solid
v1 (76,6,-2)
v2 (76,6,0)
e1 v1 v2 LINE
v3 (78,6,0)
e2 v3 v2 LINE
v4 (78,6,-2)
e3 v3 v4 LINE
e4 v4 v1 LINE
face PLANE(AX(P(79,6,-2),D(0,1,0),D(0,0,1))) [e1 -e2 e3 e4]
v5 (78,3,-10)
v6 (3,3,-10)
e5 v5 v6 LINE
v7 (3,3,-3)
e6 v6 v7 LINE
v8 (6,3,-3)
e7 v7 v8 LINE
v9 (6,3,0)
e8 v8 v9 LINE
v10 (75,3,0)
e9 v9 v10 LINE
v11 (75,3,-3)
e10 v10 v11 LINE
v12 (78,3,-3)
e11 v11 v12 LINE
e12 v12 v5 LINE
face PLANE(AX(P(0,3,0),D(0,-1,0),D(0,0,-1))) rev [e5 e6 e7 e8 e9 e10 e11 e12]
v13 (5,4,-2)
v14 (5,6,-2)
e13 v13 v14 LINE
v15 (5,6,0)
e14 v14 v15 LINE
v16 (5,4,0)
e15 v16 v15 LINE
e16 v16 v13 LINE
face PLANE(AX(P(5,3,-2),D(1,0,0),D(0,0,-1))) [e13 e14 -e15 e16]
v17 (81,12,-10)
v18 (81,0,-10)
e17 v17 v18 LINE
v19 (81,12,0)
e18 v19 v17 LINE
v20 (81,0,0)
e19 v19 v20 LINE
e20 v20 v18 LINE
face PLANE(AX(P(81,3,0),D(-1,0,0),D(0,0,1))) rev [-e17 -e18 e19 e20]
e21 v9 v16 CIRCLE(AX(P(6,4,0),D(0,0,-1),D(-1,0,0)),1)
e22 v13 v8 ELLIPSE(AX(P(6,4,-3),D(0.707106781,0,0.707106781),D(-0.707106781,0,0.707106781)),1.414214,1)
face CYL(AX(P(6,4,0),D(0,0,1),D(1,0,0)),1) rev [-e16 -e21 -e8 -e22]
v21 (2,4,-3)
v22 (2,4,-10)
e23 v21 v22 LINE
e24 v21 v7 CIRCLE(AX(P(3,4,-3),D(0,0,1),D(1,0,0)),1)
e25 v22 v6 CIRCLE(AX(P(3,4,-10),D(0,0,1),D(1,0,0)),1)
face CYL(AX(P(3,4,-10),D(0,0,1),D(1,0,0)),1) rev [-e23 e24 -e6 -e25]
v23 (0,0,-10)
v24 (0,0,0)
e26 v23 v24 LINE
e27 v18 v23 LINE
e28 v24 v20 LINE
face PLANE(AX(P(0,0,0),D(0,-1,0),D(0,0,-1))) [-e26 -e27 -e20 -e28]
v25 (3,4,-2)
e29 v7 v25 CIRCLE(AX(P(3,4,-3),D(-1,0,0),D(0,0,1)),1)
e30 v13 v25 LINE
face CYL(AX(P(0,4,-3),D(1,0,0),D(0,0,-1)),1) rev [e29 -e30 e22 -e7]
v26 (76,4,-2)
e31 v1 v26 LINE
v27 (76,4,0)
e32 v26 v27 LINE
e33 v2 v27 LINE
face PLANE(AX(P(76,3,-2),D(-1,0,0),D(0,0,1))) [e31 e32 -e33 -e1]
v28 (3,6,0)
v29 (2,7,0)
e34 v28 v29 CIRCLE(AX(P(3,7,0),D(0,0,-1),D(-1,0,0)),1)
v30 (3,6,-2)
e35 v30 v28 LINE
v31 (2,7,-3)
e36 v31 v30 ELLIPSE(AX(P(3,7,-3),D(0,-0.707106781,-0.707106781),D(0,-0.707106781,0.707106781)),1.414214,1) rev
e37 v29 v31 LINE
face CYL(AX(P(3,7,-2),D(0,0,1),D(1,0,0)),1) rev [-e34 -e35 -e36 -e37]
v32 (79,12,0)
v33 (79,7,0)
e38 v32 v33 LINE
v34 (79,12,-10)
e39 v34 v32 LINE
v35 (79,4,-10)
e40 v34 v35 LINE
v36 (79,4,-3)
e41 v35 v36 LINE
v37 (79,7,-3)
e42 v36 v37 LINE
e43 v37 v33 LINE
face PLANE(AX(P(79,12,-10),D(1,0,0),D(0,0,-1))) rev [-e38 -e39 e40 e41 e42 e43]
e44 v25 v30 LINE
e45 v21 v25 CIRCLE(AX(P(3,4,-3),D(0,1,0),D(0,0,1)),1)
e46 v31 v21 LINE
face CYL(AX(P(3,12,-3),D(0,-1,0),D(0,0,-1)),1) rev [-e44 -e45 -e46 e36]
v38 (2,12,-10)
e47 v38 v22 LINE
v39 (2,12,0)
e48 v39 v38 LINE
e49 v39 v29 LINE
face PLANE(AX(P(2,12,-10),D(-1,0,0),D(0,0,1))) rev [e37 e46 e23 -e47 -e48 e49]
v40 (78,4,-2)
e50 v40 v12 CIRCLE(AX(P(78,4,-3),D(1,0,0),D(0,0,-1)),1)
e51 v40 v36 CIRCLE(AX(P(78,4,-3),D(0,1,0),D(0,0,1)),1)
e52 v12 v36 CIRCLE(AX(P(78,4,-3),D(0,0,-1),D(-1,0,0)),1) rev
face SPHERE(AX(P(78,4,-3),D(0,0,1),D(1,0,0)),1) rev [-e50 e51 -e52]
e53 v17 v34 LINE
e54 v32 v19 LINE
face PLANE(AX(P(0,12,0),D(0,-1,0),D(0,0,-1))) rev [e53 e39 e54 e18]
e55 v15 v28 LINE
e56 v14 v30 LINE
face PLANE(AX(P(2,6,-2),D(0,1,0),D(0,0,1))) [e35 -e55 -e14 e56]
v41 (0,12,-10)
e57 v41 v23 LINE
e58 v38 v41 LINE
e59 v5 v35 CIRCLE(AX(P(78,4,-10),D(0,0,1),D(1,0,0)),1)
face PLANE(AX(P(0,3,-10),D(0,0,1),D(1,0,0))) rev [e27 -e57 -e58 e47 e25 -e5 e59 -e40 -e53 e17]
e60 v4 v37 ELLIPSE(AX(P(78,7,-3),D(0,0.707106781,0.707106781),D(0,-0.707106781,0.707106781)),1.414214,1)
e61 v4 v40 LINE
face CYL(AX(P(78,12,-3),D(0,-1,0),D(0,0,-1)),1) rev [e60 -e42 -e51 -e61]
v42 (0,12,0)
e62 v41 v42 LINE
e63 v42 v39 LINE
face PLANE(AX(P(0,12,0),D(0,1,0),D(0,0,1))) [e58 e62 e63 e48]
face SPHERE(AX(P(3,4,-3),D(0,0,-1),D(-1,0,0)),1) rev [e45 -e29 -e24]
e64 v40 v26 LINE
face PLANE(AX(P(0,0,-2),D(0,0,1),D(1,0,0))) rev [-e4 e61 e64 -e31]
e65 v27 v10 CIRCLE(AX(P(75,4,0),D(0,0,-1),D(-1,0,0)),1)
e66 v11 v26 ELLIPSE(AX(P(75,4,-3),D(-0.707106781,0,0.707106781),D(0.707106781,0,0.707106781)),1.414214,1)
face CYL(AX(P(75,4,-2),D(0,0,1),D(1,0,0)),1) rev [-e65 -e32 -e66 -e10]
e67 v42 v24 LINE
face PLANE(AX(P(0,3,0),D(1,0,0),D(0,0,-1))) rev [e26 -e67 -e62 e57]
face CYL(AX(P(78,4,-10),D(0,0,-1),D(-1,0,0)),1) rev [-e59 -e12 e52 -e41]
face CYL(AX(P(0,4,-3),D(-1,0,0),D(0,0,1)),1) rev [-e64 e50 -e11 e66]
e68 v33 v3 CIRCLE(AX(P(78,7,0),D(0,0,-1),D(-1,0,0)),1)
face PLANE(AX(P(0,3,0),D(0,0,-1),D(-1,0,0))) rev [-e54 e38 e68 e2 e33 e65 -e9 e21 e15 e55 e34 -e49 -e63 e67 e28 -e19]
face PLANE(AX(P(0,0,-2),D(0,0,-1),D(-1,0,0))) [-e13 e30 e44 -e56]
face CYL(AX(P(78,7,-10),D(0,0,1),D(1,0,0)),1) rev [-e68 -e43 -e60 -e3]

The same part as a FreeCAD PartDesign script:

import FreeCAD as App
import Part
import Sketcher
from FreeCAD import Vector


def edges_at(feature, points):
    """Names of the edges that pass closest to the given points."""
    edges = feature.Shape.Edges
    near = lambda p: min(range(len(edges)), key=lambda i: edges[i].distToShape(Part.Vertex(*p))[0])
    return sorted({f"Edge{near(p) + 1}" for p in points})


def add_polygon(sketch, points):
    """Adds a closed chain of lines whose ends are joined by coincident constraints."""
    first, n = sketch.GeometryCount, len(points)
    for a, b in zip(points, points[1:] + points[:1]):
        sketch.addGeometry(Part.LineSegment(App.Vector(*a, 0), App.Vector(*b, 0)), False)
    for i in range(n):
        sketch.addConstraint(Sketcher.Constraint("Coincident", first + i, 2, first + (i + 1) % n, 1))

doc = App.newDocument("Part")
body = doc.addObject("PartDesign::Body", "Body")

sketch1 = body.newObject("Sketcher::SketchObject", "Sketch")
sketch1.AttachmentSupport = (doc.getObject("XZ_Plane"), [""])
sketch1.MapMode = "FlatFace"
add_polygon(sketch1, [(0, -10), (0, 0), (81, 0), (81, -10)])
sketch1.addConstraint([
    Sketcher.Constraint("Vertical", 0),
    Sketcher.Constraint("Horizontal", 1),
    Sketcher.Constraint("Vertical", 2),
    Sketcher.Constraint("Horizontal", 3),
    Sketcher.Constraint("Coincident", 0, 2, -1, 1),
    Sketcher.Constraint("DistanceX", 1, 1, 1, 2, 81.0),
    Sketcher.Constraint("DistanceY", 0, 1, 0, 2, 10.0),
])
pad1 = body.newObject("PartDesign::Pad", "Pad")
pad1.Profile = sketch1
pad1.Length = 3
pad1.Reversed = True

sketch2 = body.newObject("Sketcher::SketchObject", "Sketch001")
sketch2.AttachmentSupport = (doc.getObject("XZ_Plane"), [""])
sketch2.MapMode = "FlatFace"
sketch2.AttachmentOffset = App.Placement(Vector(0, 0, -3), App.Rotation())
add_polygon(sketch2, [(0, -10), (0, 0), (2, 0), (2, -10)])
add_polygon(sketch2, [(79, -10), (79, 0), (81, 0), (81, -10)])
sketch2.addConstraint([
    Sketcher.Constraint("Vertical", 0),
    Sketcher.Constraint("Horizontal", 1),
    Sketcher.Constraint("Vertical", 2),
    Sketcher.Constraint("Horizontal", 3),
    Sketcher.Constraint("Vertical", 4),
    Sketcher.Constraint("Horizontal", 5),
    Sketcher.Constraint("Vertical", 6),
    Sketcher.Constraint("Horizontal", 7),
    Sketcher.Constraint("Coincident", 0, 2, -1, 1),
    Sketcher.Constraint("PointOnObject", 4, 2, -1),
    Sketcher.Constraint("Horizontal", 3, 2, 6, 2),
    Sketcher.Constraint("Equal", 3, 5),
    Sketcher.Constraint("DistanceX", 1, 1, 1, 2, 2.0),
    Sketcher.Constraint("DistanceY", 0, 1, 0, 2, 10.0),
    Sketcher.Constraint("DistanceX", -1, 1, 4, 2, 79.0),
])
pad2 = body.newObject("PartDesign::Pad", "Pad001")
pad2.Profile = sketch2
pad2.Length = 9
pad2.Reversed = True

sketch3 = body.newObject("Sketcher::SketchObject", "Sketch002")
sketch3.AttachmentSupport = (doc.getObject("XY_Plane"), [""])
sketch3.MapMode = "FlatFace"
add_polygon(sketch3, [(2, 6), (2, 3), (5, 3), (5, 6)])
add_polygon(sketch3, [(76, 6), (76, 3), (79, 3), (79, 6)])
sketch3.addConstraint([
    Sketcher.Constraint("Vertical", 0),
    Sketcher.Constraint("Horizontal", 1),
    Sketcher.Constraint("Vertical", 2),
    Sketcher.Constraint("Horizontal", 3),
    Sketcher.Constraint("Vertical", 4),
    Sketcher.Constraint("Horizontal", 5),
    Sketcher.Constraint("Vertical", 6),
    Sketcher.Constraint("Horizontal", 7),
    Sketcher.Constraint("Horizontal", 1, 2, 4, 2),
    Sketcher.Constraint("Horizontal", 3, 2, 6, 2),
    Sketcher.Constraint("Equal", 3, 5),
    Sketcher.Constraint("Equal", 7, 0),
    Sketcher.Constraint("DistanceX", 1, 1, 1, 2, 3.0),
    Sketcher.Constraint("DistanceX", -1, 1, 0, 2, 2.0),
    Sketcher.Constraint("DistanceY", -1, 1, 0, 2, 3.0),
    Sketcher.Constraint("DistanceX", -1, 1, 4, 2, 76.0),
])
pad3 = body.newObject("PartDesign::Pad", "Pad002")
pad3.Profile = sketch3
pad3.Length = 2
pad3.Reversed = True
doc.recompute()

fillet = body.newObject("PartDesign::Fillet", "Fillet")
fillet.Base = (pad3, edges_at(pad3, [(79, 3, -6), (2, 3, -6)]))
fillet.Radius = 1
doc.recompute()

fillet2 = body.newObject("PartDesign::Fillet", "Fillet001")
fillet2.Base = (fillet, edges_at(fillet, [
    (2, 5, -2),
    (2, 6, -1),
    (5, 3, -1),
    (79, 6, -1),
    (77, 3, -2),
    (76, 3, -1),
    (4, 3, -2),
    (2.293, 3.293, -2),
    (79, 5, -2),
    (78.707, 3.293, -2),
]))
fillet2.Radius = 1

doc.recompute()
